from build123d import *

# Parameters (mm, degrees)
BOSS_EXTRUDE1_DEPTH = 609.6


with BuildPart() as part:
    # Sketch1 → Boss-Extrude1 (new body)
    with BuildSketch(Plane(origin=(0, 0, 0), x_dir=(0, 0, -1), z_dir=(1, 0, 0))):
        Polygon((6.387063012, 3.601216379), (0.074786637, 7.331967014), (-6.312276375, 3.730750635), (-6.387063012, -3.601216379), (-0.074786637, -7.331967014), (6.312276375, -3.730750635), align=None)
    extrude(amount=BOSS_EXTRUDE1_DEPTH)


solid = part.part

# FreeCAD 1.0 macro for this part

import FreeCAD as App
import Part
import Sketcher
Q = App.Units.Quantity

doc = App.newDocument("Part")
body = doc.addObject("PartDesign::Body", "Body")

sketch1 = body.newObject("Sketcher::SketchObject", "Sketch")
sketch1.AttachmentSupport = (doc.getObject("YZ_Plane"), [""])
sketch1.MapMode = "FlatFace"
sketch1.addGeometry([
    Part.LineSegment(App.Vector(4, -6, 0), App.Vector(7, 0, 0)),
    Part.LineSegment(App.Vector(7, 0, 0), App.Vector(4, 6, 0)),
    Part.LineSegment(App.Vector(4, 6, 0), App.Vector(-4, 6, 0)),
    Part.LineSegment(App.Vector(-4, 6, 0), App.Vector(-7, 0, 0)),
    Part.LineSegment(App.Vector(-7, 0, 0), App.Vector(-4, -6, 0)),
    Part.LineSegment(App.Vector(-4, -6, 0), App.Vector(4, -6, 0)),
], False)
sketch1.addConstraint([
    Sketcher.Constraint("Coincident", 0, 2, 1, 1),
    Sketcher.Constraint("Coincident", 1, 2, 2, 1),
    Sketcher.Constraint("Coincident", 2, 2, 3, 1),
    Sketcher.Constraint("Coincident", 3, 2, 4, 1),
    Sketcher.Constraint("Coincident", 4, 2, 5, 1),
    Sketcher.Constraint("Coincident", 5, 2, 0, 1),
    Sketcher.Constraint("Symmetric", 0, 2, 3, 2, -1, 1),
    Sketcher.Constraint("Symmetric", 1, 2, 4, 2, -1, 1),
    Sketcher.Constraint("Symmetric", 2, 2, 5, 2, -1, 1),
    Sketcher.Constraint("Equal", 0, 1),
    Sketcher.Constraint("Equal", 1, 2),
    Sketcher.Constraint("DistanceX", 4, 2, 1, 2, 7.461501),
    Sketcher.Constraint("Distance", 0, 7.332348),
    Sketcher.Constraint("DistanceY", 0, 2, 2, 2, 6.46185),
    Sketcher.Constraint("DistanceX", 3, 2, 2, 2, 3.730751),
])
pad1 = body.newObject("PartDesign::Pad", "Pad")
pad1.Profile = sketch1
pad1.Length = Q("24 in")

doc.recompute()
